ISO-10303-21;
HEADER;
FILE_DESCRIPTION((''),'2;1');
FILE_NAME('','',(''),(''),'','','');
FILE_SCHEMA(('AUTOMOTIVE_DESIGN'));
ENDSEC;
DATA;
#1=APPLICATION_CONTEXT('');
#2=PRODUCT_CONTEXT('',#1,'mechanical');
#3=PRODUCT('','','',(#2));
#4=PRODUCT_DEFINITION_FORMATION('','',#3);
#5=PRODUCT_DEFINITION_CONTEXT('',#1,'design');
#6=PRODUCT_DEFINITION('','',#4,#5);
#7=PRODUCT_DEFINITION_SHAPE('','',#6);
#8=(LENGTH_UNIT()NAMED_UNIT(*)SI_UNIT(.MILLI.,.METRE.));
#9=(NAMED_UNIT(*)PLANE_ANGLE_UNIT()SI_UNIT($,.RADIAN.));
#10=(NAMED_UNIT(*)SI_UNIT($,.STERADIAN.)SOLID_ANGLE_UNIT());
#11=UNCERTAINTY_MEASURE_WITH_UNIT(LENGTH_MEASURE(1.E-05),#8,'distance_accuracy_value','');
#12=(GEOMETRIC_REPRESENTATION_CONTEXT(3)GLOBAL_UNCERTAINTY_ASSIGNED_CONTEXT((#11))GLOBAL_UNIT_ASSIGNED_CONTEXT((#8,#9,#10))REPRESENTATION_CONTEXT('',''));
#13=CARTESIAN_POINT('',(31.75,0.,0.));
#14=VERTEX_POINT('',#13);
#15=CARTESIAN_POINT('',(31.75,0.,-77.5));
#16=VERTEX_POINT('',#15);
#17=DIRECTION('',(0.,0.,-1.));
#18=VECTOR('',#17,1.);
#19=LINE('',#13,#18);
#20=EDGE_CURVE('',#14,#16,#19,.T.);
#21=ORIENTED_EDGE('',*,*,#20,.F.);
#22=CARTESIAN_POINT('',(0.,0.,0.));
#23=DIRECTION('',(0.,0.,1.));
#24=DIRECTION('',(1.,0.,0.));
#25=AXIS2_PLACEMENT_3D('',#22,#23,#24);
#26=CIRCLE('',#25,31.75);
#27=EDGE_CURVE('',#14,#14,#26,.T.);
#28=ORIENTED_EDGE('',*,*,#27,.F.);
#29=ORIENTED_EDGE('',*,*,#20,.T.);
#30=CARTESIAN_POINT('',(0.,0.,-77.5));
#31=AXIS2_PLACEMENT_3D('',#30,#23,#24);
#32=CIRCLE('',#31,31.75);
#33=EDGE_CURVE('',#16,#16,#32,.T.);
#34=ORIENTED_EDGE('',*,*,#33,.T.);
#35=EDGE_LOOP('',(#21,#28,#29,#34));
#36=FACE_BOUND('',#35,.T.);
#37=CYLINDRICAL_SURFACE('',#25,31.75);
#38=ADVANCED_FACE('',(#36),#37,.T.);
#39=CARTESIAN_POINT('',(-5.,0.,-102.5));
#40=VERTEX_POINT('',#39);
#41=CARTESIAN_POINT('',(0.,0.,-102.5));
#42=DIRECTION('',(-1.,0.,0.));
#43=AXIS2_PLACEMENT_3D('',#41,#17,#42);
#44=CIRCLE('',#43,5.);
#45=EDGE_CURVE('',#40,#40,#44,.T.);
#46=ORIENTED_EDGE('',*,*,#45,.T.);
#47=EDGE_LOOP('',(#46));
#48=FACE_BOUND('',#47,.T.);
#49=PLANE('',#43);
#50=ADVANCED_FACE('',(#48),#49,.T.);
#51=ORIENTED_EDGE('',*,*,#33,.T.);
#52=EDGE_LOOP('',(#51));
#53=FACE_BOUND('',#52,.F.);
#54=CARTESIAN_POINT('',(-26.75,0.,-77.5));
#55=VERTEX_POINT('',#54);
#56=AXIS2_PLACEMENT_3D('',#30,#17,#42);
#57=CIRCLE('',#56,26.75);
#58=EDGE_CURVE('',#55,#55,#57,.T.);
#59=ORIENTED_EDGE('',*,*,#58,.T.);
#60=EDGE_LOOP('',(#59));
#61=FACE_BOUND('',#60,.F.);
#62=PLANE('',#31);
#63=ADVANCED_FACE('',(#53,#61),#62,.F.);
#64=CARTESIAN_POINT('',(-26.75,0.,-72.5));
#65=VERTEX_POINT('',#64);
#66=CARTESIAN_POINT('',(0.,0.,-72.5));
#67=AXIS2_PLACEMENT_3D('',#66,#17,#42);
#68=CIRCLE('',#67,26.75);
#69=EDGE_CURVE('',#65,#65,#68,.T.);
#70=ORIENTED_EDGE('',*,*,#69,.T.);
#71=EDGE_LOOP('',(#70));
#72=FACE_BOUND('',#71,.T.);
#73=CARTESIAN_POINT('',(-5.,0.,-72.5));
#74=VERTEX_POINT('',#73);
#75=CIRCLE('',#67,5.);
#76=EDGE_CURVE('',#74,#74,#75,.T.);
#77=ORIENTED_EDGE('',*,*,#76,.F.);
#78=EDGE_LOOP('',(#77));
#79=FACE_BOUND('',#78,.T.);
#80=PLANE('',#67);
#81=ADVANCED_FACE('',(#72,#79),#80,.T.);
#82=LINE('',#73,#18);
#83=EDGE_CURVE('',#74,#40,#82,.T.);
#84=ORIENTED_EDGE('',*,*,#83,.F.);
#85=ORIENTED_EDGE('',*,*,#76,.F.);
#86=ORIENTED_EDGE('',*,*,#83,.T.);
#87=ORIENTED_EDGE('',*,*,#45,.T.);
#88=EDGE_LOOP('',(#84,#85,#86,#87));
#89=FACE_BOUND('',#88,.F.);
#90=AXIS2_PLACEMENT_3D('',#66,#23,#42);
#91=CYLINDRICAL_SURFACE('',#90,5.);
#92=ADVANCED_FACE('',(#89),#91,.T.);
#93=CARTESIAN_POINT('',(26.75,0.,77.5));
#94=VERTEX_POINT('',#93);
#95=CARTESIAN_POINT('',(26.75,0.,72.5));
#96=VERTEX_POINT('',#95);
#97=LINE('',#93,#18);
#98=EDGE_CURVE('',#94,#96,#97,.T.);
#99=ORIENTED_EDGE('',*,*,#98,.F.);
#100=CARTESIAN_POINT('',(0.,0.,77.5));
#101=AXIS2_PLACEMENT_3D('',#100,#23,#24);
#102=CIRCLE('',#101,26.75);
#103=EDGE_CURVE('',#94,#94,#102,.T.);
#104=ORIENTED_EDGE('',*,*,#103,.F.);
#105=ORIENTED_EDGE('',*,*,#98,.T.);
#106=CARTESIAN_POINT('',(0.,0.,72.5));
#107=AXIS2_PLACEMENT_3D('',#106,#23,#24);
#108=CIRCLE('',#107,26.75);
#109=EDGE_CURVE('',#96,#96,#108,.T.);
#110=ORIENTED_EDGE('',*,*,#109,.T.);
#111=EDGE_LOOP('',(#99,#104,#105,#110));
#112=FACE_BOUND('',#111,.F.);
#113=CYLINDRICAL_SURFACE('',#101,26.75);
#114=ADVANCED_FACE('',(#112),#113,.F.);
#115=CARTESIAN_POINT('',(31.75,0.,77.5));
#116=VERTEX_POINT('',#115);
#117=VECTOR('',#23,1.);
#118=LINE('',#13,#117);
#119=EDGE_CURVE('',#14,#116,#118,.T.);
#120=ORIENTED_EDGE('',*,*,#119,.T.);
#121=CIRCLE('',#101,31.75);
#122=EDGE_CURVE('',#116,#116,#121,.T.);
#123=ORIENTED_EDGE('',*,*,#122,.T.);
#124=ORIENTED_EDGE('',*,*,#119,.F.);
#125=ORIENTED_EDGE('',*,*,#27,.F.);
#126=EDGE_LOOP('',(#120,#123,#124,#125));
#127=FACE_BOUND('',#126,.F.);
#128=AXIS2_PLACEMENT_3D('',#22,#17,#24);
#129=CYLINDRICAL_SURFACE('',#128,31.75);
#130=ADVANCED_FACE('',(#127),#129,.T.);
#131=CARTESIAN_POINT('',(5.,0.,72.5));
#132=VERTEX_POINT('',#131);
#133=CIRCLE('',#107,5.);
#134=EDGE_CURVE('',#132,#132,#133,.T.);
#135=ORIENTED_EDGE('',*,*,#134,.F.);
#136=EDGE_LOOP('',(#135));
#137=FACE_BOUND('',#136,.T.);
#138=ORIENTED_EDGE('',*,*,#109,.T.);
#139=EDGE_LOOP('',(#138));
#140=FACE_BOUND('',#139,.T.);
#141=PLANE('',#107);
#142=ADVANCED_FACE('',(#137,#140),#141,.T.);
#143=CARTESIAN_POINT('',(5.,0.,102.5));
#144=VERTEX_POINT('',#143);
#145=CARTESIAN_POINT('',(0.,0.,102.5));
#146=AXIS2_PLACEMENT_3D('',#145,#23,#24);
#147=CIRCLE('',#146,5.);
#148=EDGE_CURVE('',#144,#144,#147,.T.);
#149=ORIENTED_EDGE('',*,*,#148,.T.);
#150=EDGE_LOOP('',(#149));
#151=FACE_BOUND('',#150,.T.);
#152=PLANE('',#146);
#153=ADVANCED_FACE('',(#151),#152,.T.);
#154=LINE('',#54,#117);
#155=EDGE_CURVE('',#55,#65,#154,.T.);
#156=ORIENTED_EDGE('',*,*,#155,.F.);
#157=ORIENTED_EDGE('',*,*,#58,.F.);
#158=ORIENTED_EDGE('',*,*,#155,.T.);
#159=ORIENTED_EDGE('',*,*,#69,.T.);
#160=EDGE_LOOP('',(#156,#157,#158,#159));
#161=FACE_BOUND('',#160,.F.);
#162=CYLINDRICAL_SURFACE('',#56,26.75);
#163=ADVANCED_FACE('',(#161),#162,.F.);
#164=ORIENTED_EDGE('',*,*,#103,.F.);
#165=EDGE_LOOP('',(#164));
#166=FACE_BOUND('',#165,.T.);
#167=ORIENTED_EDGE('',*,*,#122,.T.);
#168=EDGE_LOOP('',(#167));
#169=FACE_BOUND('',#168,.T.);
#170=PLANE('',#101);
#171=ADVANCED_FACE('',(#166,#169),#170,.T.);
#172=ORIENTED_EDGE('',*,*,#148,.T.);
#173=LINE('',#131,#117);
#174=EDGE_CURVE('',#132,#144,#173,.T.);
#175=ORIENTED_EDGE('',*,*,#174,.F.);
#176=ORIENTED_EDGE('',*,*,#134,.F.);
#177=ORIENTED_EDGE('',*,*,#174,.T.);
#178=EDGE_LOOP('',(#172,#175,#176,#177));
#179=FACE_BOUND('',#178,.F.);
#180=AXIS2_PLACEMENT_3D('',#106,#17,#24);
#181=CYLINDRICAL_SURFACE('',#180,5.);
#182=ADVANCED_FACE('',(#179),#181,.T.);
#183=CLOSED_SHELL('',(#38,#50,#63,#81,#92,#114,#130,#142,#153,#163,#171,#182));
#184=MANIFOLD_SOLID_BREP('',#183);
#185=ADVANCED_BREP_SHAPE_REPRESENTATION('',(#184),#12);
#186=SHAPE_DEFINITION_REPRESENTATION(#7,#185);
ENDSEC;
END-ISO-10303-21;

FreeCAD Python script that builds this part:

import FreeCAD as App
import Part
import Sketcher
from FreeCAD import Vector

doc = App.newDocument("Part")
params = doc.addObject("Spreadsheet::Sheet", "Params")
for row, (alias, value) in enumerate([
    ("sketch1_diameter", "63.5 mm"),
    ("pad1_length", "155 mm"),
    ("sketch2_diameter", "53.5 mm"),
    ("pocket1_length", "5 mm"),
    ("sketch3_diameter", "53.5 mm"),
    ("pocket2_length", "5 mm"),
    ("sketch4_diameter", "10 mm"),
    ("pad2_length", "30 mm"),
    ("sketch5_diameter", "10 mm"),
    ("pad3_length", "30 mm"),
], start=1):
    params.set(f"A{row}", alias)
    params.set(f"B{row}", "=" + value)
    params.setAlias(f"B{row}", alias)

body = doc.addObject("PartDesign::Body", "Body")

# Sketch on XY plane
sketch1 = body.newObject("Sketcher::SketchObject", "Sketch")
sketch1.AttachmentSupport = (doc.getObject("XY_Plane"), [""])
sketch1.MapMode = "FlatFace"
sketch1.addGeometry(Part.Circle(Vector(0, 0, 0), Vector(0, 0, 1), 32), False)
sketch1.addConstraint([
    Sketcher.Constraint("Coincident", 0, 3, -1, 1),
    Sketcher.Constraint("Diameter", 0, 63.5),
])
sketch1.setExpression("Constraints[1]", "Params.sketch1_diameter")
pad1 = body.newObject("PartDesign::Pad", "Pad")
pad1.Profile = sketch1
pad1.setExpression("Length", "Params.pad1_length")
pad1.Midplane = True

# Sketch on XY plane
sketch2 = body.newObject("Sketcher::SketchObject", "Sketch001")
sketch2.AttachmentSupport = (doc.getObject("XY_Plane"), [""])
sketch2.MapMode = "FlatFace"
sketch2.AttachmentOffset = App.Placement(Vector(0, 0, -77.5), App.Rotation())
sketch2.addGeometry(Part.Circle(Vector(0, 0, 0), Vector(0, 0, 1), 27), False)
sketch2.addConstraint([
    Sketcher.Constraint("Coincident", 0, 3, -1, 1),
    Sketcher.Constraint("Diameter", 0, 53.5),
])
sketch2.setExpression("Constraints[1]", "Params.sketch2_diameter")
pocket1 = body.newObject("PartDesign::Pocket", "Pocket")
pocket1.Profile = sketch2
pocket1.setExpression("Length", "Params.pocket1_length")
pocket1.Reversed = True

# Sketch on XY plane
sketch3 = body.newObject("Sketcher::SketchObject", "Sketch002")
sketch3.AttachmentSupport = (doc.getObject("XY_Plane"), [""])
sketch3.MapMode = "FlatFace"
sketch3.AttachmentOffset = App.Placement(Vector(0, 0, 77.5), App.Rotation())
sketch3.addGeometry(Part.Circle(Vector(0, 0, 0), Vector(0, 0, 1), 27), False)
sketch3.addConstraint([
    Sketcher.Constraint("Coincident", 0, 3, -1, 1),
    Sketcher.Constraint("Diameter", 0, 53.5),
])
sketch3.setExpression("Constraints[1]", "Params.sketch3_diameter")
pocket2 = body.newObject("PartDesign::Pocket", "Pocket001")
pocket2.Profile = sketch3
pocket2.setExpression("Length", "Params.pocket2_length")

# Sketch on XY plane
sketch4 = body.newObject("Sketcher::SketchObject", "Sketch003")
sketch4.AttachmentSupport = (doc.getObject("XY_Plane"), [""])
sketch4.MapMode = "FlatFace"
sketch4.AttachmentOffset = App.Placement(Vector(0, 0, -72.5), App.Rotation())
sketch4.addGeometry(Part.Circle(Vector(0, 0, 0), Vector(0, 0, 1), 5), False)
sketch4.addConstraint([
    Sketcher.Constraint("Coincident", 0, 3, -1, 1),
    Sketcher.Constraint("Diameter", 0, 10.0),
])
sketch4.setExpression("Constraints[1]", "Params.sketch4_diameter")
pad2 = body.newObject("PartDesign::Pad", "Pad001")
pad2.Profile = sketch4
pad2.setExpression("Length", "Params.pad2_length")
pad2.Reversed = True

# Sketch on XY plane
sketch5 = body.newObject("Sketcher::SketchObject", "Sketch004")
sketch5.AttachmentSupport = (doc.getObject("XY_Plane"), [""])
sketch5.MapMode = "FlatFace"
sketch5.AttachmentOffset = App.Placement(Vector(0, 0, 72.5), App.Rotation())
sketch5.addGeometry(Part.Circle(Vector(0, 0, 0), Vector(0, 0, 1), 5), False)
sketch5.addConstraint([
    Sketcher.Constraint("Coincident", 0, 3, -1, 1),
    Sketcher.Constraint("Diameter", 0, 10.0),
])
sketch5.setExpression("Constraints[1]", "Params.sketch5_diameter")
pad3 = body.newObject("PartDesign::Pad", "Pad002")
pad3.Profile = sketch5
pad3.setExpression("Length", "Params.pad3_length")

doc.recompute()
